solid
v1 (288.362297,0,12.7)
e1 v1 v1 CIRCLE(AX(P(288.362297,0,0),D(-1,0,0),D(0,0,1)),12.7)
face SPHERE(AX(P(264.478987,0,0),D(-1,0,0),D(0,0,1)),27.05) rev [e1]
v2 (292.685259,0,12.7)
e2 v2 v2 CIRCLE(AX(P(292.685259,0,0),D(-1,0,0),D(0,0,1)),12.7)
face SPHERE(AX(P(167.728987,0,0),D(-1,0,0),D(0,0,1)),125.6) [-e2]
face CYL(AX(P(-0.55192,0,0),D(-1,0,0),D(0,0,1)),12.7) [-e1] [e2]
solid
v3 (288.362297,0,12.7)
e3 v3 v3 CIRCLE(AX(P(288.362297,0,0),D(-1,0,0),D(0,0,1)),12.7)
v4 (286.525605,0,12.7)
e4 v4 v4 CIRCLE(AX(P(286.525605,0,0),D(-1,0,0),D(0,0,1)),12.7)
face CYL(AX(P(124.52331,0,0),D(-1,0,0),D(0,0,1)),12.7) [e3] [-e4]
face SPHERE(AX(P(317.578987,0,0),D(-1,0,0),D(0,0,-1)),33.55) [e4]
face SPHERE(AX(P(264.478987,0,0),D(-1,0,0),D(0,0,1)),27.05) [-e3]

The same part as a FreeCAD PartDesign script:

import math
import FreeCAD as App
import Part
import Sketcher

doc = App.newDocument("Part")
body = doc.addObject("PartDesign::Body", "Body")

# Sketch on XZ plane
sketch1 = body.newObject("Sketcher::SketchObject", "Sketch")
sketch1.AttachmentSupport = (doc.getObject("XZ_Plane"), [""])
sketch1.MapMode = "FlatFace"
sketch1.addGeometry(Part.ArcOfCircle(Part.Circle(App.Vector(317.6, 0, 0), App.Vector(0, 0, 1), 33.5), math.radians(180), math.radians(202)), False)
sketch1.addGeometry(Part.LineSegment(App.Vector(284, 0, 0), App.Vector(291.5, 0, 0)), False)
sketch1.addGeometry(Part.ArcOfCircle(Part.Circle(App.Vector(264.5, 0, 0), App.Vector(0, 0, 1), 27.1), math.radians(-28), math.radians(0)), False)
sketch1.addGeometry(Part.LineSegment(App.Vector(288.4, -12.7, 0), App.Vector(286.5, -12.7, 0)), False)
sketch1.addConstraint(Sketcher.Constraint("Coincident", 0, 1, 1, 1))
sketch1.addConstraint(Sketcher.Constraint("Coincident", 1, 2, 2, 2))
sketch1.addConstraint(Sketcher.Constraint("Coincident", 2, 1, 3, 1))
sketch1.addConstraint(Sketcher.Constraint("Coincident", 3, 2, 0, 2))
sketch1.addConstraint(Sketcher.Constraint("Horizontal", 1))
sketch1.addConstraint(Sketcher.Constraint("Horizontal", 3))
sketch1.addConstraint(Sketcher.Constraint("PointOnObject", 0, 3, -1))
sketch1.addConstraint(Sketcher.Constraint("PointOnObject", 2, 3, -1))
sketch1.addConstraint(Sketcher.Constraint("PointOnObject", 0, 1, -1))
sketch1.addConstraint(Sketcher.Constraint("Radius", 0, 33.55))
sketch1.addConstraint(Sketcher.Constraint("Radius", 2, 27.05))
sketch1.addConstraint(Sketcher.Constraint("DistanceX", 1, 1, 1, 2, 7.5))
sketch1.addConstraint(Sketcher.Constraint("DistanceY", 2, 1, -1, 1, 12.7))
sketch1.addConstraint(Sketcher.Constraint("DistanceX", -1, 1, 0, 3, 317.578987))
revolution = body.newObject("PartDesign::Revolution", "Revolution")
revolution.Profile = sketch1
revolution.ReferenceAxis = (sketch1, ["H_Axis"])
revolution.Angle = 360
body2 = doc.addObject("PartDesign::Body", "Body001")

# Sketch on XZ plane
sketch2 = body2.newObject("Sketcher::SketchObject", "Sketch001")
sketch2.AttachmentSupport = (doc.getObject("XZ_Plane001"), [""])
sketch2.MapMode = "FlatFace"
sketch2.addGeometry(Part.LineSegment(App.Vector(292.7, -12.7, 0), App.Vector(288.4, -12.7, 0)), False)
sketch2.addGeometry(Part.ArcOfCircle(Part.Circle(App.Vector(264.5, 0, 0), App.Vector(0, 0, 1), 27.1), math.radians(-28), math.radians(0)), False)
sketch2.addGeometry(Part.LineSegment(App.Vector(291.5, 0, 0), App.Vector(293.3, 0, 0)), False)
sketch2.addGeometry(Part.ArcOfCircle(Part.Circle(App.Vector(167.7, 0, 0), App.Vector(0, 0, 1), 125.6), math.radians(-5.8), math.radians(0)), False)
sketch2.addConstraint(Sketcher.Constraint("Coincident", 0, 2, 1, 1))
sketch2.addConstraint(Sketcher.Constraint("Coincident", 1, 2, 2, 1))
sketch2.addConstraint(Sketcher.Constraint("Coincident", 2, 2, 3, 2))
sketch2.addConstraint(Sketcher.Constraint("Coincident", 3, 1, 0, 1))
sketch2.addConstraint(Sketcher.Constraint("Horizontal", 0))
sketch2.addConstraint(Sketcher.Constraint("Horizontal", 2))
sketch2.addConstraint(Sketcher.Constraint("PointOnObject", 1, 3, -1))
sketch2.addConstraint(Sketcher.Constraint("PointOnObject", 3, 3, -1))
sketch2.addConstraint(Sketcher.Constraint("PointOnObject", 1, 2, -1))
sketch2.addConstraint(Sketcher.Constraint("Radius", 3, 125.6))
sketch2.addConstraint(Sketcher.Constraint("Radius", 1, 27.05))
sketch2.addConstraint(Sketcher.Constraint("DistanceX", 2, 1, 2, 2, 1.8))
sketch2.addConstraint(Sketcher.Constraint("DistanceY", 0, 2, -1, 1, 12.7))
sketch2.addConstraint(Sketcher.Constraint("DistanceX", -1, 1, 3, 1, 292.685259))
revolution2 = body2.newObject("PartDesign::Revolution", "Revolution001")
revolution2.Profile = sketch2
revolution2.ReferenceAxis = (sketch2, ["H_Axis"])
revolution2.Angle = 360

doc.recompute()
